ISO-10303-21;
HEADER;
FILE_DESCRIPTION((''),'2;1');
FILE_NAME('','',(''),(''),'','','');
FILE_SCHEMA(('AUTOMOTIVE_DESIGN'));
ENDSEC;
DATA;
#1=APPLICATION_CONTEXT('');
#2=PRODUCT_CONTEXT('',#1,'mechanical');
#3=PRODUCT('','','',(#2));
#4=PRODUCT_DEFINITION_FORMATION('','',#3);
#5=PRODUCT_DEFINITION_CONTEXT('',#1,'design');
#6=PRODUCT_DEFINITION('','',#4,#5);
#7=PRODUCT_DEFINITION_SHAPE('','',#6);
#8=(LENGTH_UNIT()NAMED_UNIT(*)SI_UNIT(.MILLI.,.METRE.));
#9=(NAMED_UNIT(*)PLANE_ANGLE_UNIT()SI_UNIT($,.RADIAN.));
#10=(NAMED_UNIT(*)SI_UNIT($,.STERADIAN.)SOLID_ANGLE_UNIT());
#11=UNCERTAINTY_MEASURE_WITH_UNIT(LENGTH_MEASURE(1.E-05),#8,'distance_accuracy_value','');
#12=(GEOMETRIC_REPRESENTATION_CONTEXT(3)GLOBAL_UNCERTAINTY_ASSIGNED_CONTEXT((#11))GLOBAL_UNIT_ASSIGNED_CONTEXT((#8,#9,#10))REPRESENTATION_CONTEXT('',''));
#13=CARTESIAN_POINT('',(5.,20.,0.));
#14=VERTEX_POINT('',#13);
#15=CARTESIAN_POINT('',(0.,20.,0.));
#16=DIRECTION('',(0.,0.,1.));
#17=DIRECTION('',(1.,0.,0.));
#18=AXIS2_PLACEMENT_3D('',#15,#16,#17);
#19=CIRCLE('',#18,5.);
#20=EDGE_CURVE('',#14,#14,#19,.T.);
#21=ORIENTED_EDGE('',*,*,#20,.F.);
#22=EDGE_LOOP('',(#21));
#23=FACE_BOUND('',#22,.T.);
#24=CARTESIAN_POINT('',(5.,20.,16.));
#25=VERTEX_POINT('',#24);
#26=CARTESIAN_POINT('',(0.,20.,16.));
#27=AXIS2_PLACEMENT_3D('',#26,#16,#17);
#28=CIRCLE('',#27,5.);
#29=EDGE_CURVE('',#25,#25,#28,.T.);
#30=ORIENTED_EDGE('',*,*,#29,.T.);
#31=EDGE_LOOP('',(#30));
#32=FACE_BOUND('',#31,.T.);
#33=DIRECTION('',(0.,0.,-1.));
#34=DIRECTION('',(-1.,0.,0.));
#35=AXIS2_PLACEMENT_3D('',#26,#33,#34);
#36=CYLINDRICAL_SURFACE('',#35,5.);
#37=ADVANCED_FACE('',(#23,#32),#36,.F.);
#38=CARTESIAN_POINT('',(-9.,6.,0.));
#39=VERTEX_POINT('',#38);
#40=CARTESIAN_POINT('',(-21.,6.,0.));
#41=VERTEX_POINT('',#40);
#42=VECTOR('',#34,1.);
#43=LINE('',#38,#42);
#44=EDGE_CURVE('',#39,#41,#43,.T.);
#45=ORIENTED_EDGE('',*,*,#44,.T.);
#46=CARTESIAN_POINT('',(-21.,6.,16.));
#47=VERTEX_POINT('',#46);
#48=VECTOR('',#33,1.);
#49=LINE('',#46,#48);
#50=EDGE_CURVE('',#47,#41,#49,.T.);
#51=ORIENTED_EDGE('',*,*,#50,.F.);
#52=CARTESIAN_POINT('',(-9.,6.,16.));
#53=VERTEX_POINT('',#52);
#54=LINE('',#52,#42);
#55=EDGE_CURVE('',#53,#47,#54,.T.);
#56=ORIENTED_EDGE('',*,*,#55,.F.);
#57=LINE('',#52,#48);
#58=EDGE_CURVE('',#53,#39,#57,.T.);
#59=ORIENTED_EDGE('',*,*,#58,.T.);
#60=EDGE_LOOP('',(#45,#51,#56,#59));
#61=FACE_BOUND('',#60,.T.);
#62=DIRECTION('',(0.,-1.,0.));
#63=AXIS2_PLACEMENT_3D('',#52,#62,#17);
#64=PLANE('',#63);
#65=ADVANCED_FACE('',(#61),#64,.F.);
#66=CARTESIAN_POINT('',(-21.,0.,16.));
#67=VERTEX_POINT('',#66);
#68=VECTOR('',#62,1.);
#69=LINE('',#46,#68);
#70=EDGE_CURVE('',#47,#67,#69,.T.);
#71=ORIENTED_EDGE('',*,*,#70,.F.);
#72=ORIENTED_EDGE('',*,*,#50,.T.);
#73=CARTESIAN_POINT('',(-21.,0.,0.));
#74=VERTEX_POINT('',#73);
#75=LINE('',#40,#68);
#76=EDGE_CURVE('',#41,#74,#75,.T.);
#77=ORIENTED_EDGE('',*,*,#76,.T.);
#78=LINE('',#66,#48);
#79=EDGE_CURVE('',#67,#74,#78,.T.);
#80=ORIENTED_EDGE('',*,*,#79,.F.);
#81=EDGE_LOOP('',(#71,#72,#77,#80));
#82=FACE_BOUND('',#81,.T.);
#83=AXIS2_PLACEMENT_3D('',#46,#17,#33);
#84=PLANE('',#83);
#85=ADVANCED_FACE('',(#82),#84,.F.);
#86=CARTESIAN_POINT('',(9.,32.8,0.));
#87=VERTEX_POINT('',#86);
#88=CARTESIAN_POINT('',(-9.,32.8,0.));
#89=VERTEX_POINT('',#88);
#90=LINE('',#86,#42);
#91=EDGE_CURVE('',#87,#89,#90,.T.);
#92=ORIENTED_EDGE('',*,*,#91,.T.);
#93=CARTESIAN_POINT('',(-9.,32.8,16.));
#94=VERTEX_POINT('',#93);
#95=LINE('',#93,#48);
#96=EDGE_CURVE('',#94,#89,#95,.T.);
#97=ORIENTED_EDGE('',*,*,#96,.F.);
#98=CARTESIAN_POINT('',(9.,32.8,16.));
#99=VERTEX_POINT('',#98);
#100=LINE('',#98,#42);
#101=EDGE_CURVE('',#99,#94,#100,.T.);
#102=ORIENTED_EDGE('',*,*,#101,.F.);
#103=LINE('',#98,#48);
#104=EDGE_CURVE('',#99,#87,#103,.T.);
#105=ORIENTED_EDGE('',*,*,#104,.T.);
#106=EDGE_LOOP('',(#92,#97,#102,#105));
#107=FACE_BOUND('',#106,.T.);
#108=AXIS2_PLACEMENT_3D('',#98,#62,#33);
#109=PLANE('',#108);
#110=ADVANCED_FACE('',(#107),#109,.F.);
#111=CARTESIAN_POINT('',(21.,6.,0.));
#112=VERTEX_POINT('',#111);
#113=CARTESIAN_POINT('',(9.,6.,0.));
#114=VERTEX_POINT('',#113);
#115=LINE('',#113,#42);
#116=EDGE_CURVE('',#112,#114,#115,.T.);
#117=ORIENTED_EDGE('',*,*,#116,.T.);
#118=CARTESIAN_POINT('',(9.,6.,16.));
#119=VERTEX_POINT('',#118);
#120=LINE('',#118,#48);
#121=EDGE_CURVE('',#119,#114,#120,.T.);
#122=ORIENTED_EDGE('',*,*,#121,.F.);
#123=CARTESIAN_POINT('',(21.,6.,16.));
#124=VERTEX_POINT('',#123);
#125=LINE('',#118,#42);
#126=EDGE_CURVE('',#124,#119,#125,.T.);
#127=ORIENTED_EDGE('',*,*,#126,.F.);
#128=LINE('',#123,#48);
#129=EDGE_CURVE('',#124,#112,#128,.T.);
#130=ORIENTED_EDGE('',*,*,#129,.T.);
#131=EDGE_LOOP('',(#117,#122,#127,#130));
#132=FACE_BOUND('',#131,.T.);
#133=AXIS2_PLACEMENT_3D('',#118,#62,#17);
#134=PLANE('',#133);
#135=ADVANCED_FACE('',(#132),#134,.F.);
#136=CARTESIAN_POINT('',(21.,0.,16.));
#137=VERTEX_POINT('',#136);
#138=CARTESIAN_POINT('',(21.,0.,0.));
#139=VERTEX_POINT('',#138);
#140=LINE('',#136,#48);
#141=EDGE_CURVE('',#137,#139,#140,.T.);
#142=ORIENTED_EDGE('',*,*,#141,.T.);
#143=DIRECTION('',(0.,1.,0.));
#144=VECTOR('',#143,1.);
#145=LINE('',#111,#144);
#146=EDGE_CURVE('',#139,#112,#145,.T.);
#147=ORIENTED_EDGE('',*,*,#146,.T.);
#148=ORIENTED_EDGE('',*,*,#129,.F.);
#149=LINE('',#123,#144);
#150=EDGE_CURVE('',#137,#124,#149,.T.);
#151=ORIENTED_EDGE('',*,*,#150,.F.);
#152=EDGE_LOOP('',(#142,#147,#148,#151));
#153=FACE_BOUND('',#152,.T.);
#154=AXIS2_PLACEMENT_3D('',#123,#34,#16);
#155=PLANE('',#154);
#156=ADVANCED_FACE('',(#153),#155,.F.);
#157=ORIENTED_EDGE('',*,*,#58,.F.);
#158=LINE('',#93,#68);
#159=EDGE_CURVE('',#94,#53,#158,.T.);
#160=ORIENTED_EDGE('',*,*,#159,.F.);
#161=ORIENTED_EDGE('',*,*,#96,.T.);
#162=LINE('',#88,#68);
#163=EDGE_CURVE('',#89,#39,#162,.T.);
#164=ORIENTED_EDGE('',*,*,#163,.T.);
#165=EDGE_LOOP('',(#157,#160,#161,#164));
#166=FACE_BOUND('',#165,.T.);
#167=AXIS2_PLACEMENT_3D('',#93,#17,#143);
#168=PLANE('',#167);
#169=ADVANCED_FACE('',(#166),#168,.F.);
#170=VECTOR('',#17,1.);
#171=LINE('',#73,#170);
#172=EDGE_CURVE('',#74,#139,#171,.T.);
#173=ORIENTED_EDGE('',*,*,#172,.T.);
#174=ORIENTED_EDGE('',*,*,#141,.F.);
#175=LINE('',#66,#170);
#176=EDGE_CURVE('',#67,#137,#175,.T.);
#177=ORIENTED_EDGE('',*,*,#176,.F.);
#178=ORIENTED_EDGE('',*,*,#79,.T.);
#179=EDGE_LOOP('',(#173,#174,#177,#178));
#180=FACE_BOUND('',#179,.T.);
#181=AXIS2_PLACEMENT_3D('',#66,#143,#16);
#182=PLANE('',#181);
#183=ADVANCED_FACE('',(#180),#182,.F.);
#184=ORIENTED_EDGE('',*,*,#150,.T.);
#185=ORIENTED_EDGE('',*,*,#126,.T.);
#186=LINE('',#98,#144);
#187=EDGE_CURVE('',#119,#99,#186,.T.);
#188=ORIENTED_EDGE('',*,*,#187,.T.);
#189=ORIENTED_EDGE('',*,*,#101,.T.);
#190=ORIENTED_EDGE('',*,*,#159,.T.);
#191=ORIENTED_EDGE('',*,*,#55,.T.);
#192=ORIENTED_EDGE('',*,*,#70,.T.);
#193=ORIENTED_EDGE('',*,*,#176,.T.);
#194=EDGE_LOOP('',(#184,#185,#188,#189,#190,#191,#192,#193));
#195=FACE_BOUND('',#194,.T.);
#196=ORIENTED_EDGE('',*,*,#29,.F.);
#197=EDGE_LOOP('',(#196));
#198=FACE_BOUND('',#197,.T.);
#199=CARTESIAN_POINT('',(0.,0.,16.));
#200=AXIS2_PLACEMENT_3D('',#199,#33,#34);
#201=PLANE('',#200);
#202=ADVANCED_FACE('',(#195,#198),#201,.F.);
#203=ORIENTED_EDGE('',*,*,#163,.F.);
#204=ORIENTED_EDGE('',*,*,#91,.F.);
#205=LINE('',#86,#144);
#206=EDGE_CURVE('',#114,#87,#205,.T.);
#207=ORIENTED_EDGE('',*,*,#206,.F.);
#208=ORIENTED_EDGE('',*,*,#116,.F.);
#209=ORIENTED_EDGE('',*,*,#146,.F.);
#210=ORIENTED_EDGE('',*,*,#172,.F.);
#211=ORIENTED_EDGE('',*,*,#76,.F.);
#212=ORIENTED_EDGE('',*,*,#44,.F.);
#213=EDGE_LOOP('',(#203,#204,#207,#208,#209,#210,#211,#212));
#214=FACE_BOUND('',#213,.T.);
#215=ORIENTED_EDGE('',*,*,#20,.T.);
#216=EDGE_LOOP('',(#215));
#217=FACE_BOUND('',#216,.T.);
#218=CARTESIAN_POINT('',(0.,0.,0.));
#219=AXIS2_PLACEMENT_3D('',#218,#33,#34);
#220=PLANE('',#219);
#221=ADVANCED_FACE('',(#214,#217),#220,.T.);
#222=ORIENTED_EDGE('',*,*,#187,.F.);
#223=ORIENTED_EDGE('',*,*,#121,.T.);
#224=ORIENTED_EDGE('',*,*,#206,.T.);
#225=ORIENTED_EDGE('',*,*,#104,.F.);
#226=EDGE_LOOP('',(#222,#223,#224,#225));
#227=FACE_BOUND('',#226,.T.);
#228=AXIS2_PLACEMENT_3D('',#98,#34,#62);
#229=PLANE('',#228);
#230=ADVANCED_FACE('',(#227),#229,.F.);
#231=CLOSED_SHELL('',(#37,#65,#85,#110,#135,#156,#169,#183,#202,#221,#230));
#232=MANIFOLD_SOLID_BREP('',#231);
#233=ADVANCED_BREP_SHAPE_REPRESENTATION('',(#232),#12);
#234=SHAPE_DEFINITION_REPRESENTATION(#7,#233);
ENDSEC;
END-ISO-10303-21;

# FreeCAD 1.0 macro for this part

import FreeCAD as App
import Part
import Sketcher
from FreeCAD import Vector


def add_polygon(sketch, points):
    """Adds a closed chain of lines whose ends are joined by coincident constraints."""
    first, n = sketch.GeometryCount, len(points)
    for a, b in zip(points, points[1:] + points[:1]):
        sketch.addGeometry(Part.LineSegment(App.Vector(*a, 0), App.Vector(*b, 0)), False)
    for i in range(n):
        sketch.addConstraint(Sketcher.Constraint("Coincident", first + i, 2, first + (i + 1) % n, 1))

doc = App.newDocument("Part")
body = doc.addObject("PartDesign::Body", "Body")

sketch1 = body.newObject("Sketcher::SketchObject", "Sketch")
sketch1.AttachmentSupport = (doc.getObject("XY_Plane"), [""])
sketch1.MapMode = "FlatFace"
add_polygon(sketch1, [(9, 33), (-9, 33), (-9, 6), (-21, 6), (-21, 0), (21, 0), (21, 6), (9, 6)])
sketch1.addGeometry(Part.Circle(Vector(0, 20, 0), Vector(0, 0, 1), 5), False)
sketch1.addConstraint([
    Sketcher.Constraint("Horizontal", 0),
    Sketcher.Constraint("Vertical", 1),
    Sketcher.Constraint("Horizontal", 2),
    Sketcher.Constraint("Vertical", 3),
    Sketcher.Constraint("Horizontal", 4),
    Sketcher.Constraint("Vertical", 5),
    Sketcher.Constraint("Horizontal", 6),
    Sketcher.Constraint("Vertical", 7),
    Sketcher.Constraint("Symmetric", 3, 2, 4, 2, -1, 1),
    Sketcher.Constraint("Symmetric", 1, 2, 6, 2, -2),
    Sketcher.Constraint("PointOnObject", 8, 3, -2),
    Sketcher.Constraint("Diameter", 8, 10.0),
    Sketcher.Constraint("DistanceX", 0, 2, 0, 1, 18.0),
    Sketcher.Constraint("DistanceX", 2, 2, 2, 1, 12.0),
    Sketcher.Constraint("DistanceY", 3, 2, 3, 1, 6.0),
    Sketcher.Constraint("DistanceY", 1, 2, 1, 1, 26.8),
    Sketcher.Constraint("DistanceY", -1, 1, 8, 3, 20.0),
])
pad1 = body.newObject("PartDesign::Pad", "Pad")
pad1.Profile = sketch1
pad1.Length = 16

doc.recompute()
